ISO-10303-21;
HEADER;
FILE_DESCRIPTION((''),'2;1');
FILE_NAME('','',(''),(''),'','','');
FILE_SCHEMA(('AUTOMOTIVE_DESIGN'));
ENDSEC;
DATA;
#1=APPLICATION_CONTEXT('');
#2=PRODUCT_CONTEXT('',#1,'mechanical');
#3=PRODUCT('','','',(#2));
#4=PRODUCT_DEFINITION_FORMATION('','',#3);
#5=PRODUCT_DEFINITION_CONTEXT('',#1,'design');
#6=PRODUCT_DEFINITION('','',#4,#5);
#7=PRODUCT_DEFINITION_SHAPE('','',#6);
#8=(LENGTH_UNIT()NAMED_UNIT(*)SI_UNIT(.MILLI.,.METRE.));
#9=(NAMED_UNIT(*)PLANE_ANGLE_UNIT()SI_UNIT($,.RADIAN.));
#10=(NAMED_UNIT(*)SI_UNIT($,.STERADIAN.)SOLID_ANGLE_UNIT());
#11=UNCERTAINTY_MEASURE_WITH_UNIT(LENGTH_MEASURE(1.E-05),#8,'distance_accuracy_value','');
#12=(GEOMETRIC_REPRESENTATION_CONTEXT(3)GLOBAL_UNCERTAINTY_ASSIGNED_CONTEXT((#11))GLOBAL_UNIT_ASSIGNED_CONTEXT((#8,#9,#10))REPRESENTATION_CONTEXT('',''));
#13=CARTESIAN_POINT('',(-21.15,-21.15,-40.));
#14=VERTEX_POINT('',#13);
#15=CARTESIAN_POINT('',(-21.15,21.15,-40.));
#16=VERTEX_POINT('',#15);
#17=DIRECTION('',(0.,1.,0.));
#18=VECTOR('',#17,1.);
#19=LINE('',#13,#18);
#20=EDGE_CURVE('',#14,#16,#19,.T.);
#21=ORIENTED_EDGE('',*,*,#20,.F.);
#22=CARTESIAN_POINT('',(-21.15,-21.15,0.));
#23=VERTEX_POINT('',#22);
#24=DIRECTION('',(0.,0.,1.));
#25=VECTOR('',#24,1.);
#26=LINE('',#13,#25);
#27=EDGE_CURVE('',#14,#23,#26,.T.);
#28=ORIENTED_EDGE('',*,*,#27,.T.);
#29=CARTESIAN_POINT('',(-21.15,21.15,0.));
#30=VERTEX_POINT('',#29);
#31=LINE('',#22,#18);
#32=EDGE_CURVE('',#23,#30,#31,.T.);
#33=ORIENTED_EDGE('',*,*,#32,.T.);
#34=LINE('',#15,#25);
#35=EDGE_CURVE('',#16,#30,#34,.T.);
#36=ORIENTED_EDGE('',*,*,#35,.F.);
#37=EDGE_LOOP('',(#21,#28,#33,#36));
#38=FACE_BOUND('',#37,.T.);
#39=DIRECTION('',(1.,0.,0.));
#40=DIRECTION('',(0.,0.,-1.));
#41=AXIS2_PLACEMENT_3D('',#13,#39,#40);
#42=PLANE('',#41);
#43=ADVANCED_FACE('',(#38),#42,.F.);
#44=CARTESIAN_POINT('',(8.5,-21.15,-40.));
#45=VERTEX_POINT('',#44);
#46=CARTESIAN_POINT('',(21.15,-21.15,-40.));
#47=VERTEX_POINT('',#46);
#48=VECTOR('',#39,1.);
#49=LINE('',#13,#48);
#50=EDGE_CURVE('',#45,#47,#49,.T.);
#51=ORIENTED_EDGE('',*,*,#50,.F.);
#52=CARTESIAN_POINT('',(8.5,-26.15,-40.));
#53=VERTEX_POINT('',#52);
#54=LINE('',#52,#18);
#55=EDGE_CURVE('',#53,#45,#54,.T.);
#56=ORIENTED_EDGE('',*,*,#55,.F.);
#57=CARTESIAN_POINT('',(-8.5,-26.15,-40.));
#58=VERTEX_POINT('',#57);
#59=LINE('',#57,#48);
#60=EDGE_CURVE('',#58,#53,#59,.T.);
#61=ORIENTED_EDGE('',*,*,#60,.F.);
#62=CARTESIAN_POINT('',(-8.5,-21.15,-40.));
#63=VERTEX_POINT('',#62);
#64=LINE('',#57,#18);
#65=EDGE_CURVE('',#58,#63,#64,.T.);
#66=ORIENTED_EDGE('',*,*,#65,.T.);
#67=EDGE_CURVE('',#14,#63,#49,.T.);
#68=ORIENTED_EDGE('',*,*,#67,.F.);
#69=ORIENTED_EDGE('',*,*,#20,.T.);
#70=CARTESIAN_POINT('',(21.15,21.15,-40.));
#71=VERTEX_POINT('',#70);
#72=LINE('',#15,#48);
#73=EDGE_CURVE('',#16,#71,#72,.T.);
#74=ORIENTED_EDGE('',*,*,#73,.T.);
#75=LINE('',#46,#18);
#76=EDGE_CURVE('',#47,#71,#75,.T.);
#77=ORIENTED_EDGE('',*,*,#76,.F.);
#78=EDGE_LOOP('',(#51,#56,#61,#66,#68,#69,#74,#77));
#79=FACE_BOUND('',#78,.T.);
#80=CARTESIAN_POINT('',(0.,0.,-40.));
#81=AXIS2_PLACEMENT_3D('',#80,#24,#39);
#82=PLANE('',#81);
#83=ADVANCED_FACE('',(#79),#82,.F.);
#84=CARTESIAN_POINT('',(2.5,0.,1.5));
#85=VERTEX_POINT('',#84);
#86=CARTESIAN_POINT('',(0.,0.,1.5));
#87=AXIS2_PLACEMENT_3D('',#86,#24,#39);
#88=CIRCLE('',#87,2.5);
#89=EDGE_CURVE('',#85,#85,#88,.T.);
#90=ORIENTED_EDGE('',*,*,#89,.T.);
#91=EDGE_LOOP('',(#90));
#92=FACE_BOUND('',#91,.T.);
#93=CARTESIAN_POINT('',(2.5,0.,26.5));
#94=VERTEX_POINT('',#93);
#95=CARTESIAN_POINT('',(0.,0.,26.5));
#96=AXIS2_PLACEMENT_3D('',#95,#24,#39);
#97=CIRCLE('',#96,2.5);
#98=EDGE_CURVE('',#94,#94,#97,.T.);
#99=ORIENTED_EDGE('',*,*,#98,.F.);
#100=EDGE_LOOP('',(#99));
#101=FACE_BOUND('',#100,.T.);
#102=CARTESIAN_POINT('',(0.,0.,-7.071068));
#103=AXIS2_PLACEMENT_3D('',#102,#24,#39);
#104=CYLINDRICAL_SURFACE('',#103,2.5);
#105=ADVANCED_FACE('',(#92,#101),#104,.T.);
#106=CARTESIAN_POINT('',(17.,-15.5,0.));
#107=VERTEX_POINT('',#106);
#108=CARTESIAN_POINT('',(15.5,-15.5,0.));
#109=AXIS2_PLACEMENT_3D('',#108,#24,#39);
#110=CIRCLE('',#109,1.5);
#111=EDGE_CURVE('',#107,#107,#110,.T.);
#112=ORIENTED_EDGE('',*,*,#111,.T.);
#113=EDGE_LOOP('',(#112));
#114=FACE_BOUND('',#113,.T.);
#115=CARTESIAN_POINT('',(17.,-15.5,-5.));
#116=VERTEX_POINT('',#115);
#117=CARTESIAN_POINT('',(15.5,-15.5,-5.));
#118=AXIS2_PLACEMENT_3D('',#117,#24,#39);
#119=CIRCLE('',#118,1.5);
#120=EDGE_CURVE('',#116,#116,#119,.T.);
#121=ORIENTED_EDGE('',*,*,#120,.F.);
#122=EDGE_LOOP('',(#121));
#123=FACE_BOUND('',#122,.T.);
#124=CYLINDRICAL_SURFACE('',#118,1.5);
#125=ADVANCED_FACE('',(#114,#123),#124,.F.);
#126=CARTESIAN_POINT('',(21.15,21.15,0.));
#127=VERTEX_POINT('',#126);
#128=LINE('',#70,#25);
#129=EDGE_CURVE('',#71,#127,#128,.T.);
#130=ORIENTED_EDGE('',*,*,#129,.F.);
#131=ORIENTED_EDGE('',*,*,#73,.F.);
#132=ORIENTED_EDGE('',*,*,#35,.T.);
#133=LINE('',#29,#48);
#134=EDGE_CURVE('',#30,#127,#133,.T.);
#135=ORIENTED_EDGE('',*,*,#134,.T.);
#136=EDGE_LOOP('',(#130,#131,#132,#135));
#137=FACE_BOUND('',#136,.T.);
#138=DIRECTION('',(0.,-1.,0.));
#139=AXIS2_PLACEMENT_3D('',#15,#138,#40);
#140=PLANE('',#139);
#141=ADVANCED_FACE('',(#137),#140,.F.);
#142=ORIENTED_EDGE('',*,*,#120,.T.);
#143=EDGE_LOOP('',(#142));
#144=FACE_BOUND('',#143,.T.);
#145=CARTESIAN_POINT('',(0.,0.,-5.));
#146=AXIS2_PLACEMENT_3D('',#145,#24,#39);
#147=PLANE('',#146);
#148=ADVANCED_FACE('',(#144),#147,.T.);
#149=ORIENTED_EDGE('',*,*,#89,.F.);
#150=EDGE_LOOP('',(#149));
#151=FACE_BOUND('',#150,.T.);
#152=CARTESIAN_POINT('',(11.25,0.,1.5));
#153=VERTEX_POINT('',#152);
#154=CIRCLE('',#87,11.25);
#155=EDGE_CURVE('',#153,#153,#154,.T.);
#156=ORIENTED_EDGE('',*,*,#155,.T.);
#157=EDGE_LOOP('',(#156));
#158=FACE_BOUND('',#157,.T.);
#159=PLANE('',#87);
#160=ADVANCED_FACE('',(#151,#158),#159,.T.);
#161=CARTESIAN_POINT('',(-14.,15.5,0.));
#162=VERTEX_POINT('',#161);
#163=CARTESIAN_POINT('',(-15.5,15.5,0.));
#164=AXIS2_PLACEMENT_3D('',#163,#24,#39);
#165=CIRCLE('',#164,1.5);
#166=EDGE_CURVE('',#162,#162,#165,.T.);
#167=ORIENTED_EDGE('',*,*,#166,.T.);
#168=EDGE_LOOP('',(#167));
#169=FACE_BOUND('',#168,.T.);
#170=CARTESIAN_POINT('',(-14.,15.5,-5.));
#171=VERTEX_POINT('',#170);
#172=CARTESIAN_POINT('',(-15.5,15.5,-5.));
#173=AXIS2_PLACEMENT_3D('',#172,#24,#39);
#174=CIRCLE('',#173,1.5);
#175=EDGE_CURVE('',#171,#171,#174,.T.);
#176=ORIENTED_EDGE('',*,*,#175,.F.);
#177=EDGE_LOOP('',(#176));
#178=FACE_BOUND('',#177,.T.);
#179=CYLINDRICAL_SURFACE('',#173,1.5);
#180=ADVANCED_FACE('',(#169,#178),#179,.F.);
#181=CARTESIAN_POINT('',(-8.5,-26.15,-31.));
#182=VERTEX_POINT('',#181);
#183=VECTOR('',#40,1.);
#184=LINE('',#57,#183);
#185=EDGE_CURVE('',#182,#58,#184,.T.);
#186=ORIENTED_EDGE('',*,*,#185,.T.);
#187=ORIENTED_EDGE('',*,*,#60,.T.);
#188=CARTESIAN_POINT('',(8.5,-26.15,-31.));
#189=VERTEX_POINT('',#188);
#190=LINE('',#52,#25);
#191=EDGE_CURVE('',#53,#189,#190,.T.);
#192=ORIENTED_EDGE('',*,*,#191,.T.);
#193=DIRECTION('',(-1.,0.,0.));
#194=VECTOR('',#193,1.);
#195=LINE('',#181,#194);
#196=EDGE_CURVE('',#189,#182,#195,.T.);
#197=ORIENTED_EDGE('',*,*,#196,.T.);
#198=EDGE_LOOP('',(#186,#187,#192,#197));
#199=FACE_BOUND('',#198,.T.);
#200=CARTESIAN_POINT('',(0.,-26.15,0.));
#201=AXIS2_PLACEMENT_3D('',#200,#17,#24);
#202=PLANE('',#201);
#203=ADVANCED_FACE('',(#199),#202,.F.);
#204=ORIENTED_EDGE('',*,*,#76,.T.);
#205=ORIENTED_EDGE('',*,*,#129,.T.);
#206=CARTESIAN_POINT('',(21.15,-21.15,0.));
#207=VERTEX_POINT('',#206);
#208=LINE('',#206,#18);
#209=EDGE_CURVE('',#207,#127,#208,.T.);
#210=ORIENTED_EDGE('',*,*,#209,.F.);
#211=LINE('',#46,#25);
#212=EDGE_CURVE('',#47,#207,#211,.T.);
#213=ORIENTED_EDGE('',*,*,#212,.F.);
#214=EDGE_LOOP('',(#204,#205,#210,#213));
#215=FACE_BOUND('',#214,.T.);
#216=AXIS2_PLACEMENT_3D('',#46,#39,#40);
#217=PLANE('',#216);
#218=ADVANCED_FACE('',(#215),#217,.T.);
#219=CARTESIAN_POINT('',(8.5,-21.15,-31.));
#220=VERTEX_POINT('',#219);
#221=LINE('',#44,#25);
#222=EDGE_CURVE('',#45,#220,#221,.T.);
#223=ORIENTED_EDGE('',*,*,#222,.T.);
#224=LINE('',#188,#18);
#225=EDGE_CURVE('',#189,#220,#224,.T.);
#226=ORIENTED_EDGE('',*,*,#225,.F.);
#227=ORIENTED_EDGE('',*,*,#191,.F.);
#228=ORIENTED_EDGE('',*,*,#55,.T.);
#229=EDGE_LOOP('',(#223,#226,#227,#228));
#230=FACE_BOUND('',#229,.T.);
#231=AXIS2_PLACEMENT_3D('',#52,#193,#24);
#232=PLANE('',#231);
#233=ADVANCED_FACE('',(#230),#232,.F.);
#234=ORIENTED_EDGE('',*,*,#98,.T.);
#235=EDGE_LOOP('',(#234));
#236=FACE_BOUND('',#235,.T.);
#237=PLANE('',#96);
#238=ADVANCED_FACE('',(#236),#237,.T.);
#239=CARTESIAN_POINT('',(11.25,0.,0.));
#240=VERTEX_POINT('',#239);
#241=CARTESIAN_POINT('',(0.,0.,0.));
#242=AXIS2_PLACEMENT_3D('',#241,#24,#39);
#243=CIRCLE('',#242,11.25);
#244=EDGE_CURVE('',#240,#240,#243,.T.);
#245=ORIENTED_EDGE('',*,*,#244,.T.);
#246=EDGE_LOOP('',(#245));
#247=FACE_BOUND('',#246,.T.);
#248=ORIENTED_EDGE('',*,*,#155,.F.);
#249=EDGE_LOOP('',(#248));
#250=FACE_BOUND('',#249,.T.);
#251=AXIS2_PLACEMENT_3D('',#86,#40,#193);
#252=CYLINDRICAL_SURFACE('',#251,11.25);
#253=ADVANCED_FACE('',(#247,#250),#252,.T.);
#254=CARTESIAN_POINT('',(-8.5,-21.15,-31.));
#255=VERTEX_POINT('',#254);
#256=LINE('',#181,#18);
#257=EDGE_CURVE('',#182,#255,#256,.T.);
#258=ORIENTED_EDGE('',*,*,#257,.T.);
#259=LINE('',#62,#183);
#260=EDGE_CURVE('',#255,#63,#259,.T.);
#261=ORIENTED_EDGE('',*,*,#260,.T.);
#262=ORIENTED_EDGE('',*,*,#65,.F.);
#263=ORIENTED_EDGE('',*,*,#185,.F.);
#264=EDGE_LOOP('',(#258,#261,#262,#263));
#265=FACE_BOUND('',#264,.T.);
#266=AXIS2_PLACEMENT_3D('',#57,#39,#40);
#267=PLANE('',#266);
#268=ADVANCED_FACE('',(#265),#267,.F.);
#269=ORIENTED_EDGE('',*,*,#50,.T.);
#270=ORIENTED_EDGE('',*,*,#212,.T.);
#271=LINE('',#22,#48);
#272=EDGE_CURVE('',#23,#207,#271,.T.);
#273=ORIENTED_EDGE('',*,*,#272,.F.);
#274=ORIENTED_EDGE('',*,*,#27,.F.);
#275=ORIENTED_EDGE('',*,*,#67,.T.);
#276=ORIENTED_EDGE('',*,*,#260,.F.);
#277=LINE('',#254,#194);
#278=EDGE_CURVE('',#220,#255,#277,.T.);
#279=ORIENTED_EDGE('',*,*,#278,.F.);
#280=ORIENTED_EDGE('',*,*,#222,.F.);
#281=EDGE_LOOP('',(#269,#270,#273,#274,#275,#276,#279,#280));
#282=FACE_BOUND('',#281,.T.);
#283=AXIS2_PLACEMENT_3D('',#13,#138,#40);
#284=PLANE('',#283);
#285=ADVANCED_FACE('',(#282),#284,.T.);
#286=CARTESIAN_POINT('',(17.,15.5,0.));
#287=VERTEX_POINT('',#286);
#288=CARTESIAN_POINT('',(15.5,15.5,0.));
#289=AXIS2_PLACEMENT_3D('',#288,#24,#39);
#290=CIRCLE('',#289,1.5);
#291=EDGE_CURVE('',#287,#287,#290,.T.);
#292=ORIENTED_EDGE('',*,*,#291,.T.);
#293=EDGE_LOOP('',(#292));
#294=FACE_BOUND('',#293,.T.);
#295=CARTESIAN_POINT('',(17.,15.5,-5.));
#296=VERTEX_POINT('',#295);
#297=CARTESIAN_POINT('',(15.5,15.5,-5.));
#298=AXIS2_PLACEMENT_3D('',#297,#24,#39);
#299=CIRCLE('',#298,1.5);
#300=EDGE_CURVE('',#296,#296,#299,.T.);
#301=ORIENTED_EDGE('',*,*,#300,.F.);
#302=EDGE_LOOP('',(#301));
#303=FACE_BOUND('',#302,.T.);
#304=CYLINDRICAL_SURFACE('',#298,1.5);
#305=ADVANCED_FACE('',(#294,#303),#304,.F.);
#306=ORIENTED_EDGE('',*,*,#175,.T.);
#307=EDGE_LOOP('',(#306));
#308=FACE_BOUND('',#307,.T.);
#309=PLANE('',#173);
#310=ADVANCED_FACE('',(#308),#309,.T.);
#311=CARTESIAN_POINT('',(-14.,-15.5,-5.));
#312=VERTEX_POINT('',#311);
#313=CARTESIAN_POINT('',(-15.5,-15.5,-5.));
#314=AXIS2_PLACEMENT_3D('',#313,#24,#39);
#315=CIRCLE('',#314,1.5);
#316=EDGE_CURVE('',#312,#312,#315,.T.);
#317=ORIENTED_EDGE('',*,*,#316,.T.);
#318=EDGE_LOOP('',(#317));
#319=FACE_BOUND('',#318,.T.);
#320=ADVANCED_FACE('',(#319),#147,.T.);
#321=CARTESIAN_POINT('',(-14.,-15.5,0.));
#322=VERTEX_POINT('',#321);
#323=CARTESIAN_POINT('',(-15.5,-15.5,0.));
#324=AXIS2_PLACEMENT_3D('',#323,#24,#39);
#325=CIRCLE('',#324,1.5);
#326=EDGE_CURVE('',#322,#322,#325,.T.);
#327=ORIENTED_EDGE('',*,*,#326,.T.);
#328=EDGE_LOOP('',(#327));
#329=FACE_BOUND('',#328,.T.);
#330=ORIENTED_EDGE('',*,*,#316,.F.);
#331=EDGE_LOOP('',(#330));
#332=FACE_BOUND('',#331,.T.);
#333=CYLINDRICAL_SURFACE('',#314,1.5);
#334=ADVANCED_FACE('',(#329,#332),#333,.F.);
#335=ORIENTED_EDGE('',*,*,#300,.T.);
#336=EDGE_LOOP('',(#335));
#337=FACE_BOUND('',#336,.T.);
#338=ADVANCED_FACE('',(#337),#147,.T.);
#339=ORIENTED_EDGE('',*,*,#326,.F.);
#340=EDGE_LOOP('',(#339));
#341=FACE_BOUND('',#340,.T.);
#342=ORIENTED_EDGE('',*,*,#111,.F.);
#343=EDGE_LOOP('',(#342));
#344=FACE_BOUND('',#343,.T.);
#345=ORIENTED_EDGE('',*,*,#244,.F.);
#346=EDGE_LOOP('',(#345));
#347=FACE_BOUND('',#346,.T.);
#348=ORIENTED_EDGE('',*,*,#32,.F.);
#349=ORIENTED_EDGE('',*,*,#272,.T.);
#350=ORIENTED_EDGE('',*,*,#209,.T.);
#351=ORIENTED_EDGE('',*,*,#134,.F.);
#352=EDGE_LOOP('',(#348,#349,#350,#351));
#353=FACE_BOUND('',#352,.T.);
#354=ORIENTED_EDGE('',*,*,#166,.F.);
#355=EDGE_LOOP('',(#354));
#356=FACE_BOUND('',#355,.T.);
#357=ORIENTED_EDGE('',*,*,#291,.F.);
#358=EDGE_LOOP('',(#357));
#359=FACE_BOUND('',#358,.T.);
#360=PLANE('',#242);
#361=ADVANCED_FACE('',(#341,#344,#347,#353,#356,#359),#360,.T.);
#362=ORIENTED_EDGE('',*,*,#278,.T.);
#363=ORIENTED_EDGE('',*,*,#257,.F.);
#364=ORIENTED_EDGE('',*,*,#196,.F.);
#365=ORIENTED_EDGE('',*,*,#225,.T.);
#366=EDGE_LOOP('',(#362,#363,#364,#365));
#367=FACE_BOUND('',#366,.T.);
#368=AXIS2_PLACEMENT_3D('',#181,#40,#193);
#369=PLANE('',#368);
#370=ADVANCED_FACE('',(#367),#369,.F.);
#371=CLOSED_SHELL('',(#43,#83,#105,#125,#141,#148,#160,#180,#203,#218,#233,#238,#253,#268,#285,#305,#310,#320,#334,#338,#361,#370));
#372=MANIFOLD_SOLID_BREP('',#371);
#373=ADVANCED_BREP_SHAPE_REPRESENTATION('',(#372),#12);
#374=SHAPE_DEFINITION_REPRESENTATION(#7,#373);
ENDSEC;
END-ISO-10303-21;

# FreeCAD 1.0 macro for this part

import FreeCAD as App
import Part
import Sketcher
from FreeCAD import Vector


def add_polygon(sketch, points):
    """Adds a closed chain of lines whose ends are joined by coincident constraints."""
    first, n = sketch.GeometryCount, len(points)
    for a, b in zip(points, points[1:] + points[:1]):
        sketch.addGeometry(Part.LineSegment(App.Vector(*a, 0), App.Vector(*b, 0)), False)
    for i in range(n):
        sketch.addConstraint(Sketcher.Constraint("Coincident", first + i, 2, first + (i + 1) % n, 1))

doc = App.newDocument("Part")
body = doc.addObject("PartDesign::Body", "Body")

# Sketch on XY plane
sketch1 = doc.addObject("Sketcher::SketchObject", "Sketch")
body.addObject(sketch1)
sketch1.AttachmentSupport = (doc.XY_Plane, [""])
sketch1.MapMode = "FlatFace"
add_polygon(sketch1, [(-21, 21), (-21, -21), (21, -21), (21, 21)])  # lines 0-3
sketch1.addConstraint(Sketcher.Constraint("Vertical", 0))
sketch1.addConstraint(Sketcher.Constraint("Horizontal", 1))
sketch1.addConstraint(Sketcher.Constraint("Vertical", 2))
sketch1.addConstraint(Sketcher.Constraint("Horizontal", 3))
sketch1.addConstraint(Sketcher.Constraint("Symmetric", 0, 2, 2, 2, -1, 1))
sketch1.addConstraint(Sketcher.Constraint("Equal", 3, 0))
sketch1.addConstraint(Sketcher.Constraint("DistanceX", 1, 1, 1, 2, 42.3))
pad1 = doc.addObject("PartDesign::Pad", "Pad")
body.addObject(pad1)
pad1.Profile = sketch1
pad1.Length = 40
pad1.Reversed = True

# Sketch on XY plane
sketch2 = doc.addObject("Sketcher::SketchObject", "Sketch001")
body.addObject(sketch2)
sketch2.AttachmentSupport = (doc.XY_Plane, [""])
sketch2.MapMode = "FlatFace"
sketch2.addGeometry(Part.Circle(Vector(-15.5, -15.5, 0), Vector(0, 0, 1), 1.5), False)
sketch2.addGeometry(Part.Circle(Vector(15.5, 15.5, 0), Vector(0, 0, 1), 1.5), False)
sketch2.addGeometry(Part.Circle(Vector(15.5, -15.5, 0), Vector(0, 0, 1), 1.5), False)
sketch2.addGeometry(Part.Circle(Vector(-15.5, 15.5, 0), Vector(0, 0, 1), 1.5), False)
sketch2.addConstraint(Sketcher.Constraint("Equal", 0, 1))
sketch2.addConstraint(Sketcher.Constraint("Equal", 1, 2))
sketch2.addConstraint(Sketcher.Constraint("Equal", 2, 3))
sketch2.addConstraint(Sketcher.Constraint("Symmetric", 0, 3, 1, 3, -1, 1))
sketch2.addConstraint(Sketcher.Constraint("Symmetric", 2, 3, 3, 3, -1, 1))
sketch2.addConstraint(Sketcher.Constraint("Symmetric", 0, 3, 2, 3, -2))
sketch2.addConstraint(Sketcher.Constraint("Diameter", 0, 3.0))
sketch2.addConstraint(Sketcher.Constraint("DistanceX", 0, 3, 1, 3, 31.0))
sketch2.addConstraint(Sketcher.Constraint("DistanceY", 0, 3, 1, 3, 31.0))
pocket1 = doc.addObject("PartDesign::Pocket", "Pocket")
body.addObject(pocket1)
pocket1.Profile = sketch2
pocket1.Length = 5

# Sketch on XY plane
sketch3 = doc.addObject("Sketcher::SketchObject", "Sketch002")
body.addObject(sketch3)
sketch3.AttachmentSupport = (doc.XY_Plane, [""])
sketch3.MapMode = "FlatFace"
sketch3.addGeometry(Part.Circle(Vector(0, 0, 0), Vector(0, 0, 1), 11.2), False)
sketch3.addGeometry(Part.Circle(Vector(0, 0, 0), Vector(0, 0, 1), 2.5), False)
sketch3.addConstraint(Sketcher.Constraint("Coincident", 0, 3, -1, 1))
sketch3.addConstraint(Sketcher.Constraint("Coincident", 1, 3, -1, 1))
sketch3.addConstraint(Sketcher.Constraint("Diameter", 1, 5.0))
sketch3.addConstraint(Sketcher.Constraint("Diameter", 0, 22.5))
pad2 = doc.addObject("PartDesign::Pad", "Pad001")
body.addObject(pad2)
pad2.Profile = sketch3
pad2.Length = 1.5

# Sketch on XY plane
sketch4 = doc.addObject("Sketcher::SketchObject", "Sketch003")
body.addObject(sketch4)
sketch4.AttachmentSupport = (doc.XY_Plane, [""])
sketch4.MapMode = "FlatFace"
sketch4.AttachmentOffset = App.Placement(Vector(0, 0, 1.5), App.Rotation())
sketch4.addGeometry(Part.Circle(Vector(0, 0, 0), Vector(0, 0, 1), 2.5), False)
sketch4.addConstraint(Sketcher.Constraint("Coincident", 0, 3, -1, 1))
sketch4.addConstraint(Sketcher.Constraint("Diameter", 0, 5.0))
pad3 = doc.addObject("PartDesign::Pad", "Pad002")
body.addObject(pad3)
pad3.Profile = sketch4
pad3.Type = "TwoLengths"
pad3.Length = 25
pad3.Length2 = 40

# Sketch on XZ plane
sketch5 = doc.addObject("Sketcher::SketchObject", "Sketch004")
body.addObject(sketch5)
sketch5.AttachmentSupport = (doc.XZ_Plane, [""])
sketch5.MapMode = "FlatFace"
sketch5.AttachmentOffset = App.Placement(Vector(0, 0, 21.15), App.Rotation())
add_polygon(sketch5, [(-8, -31), (-8, -40), (8, -40), (8, -31)])  # lines 0-3
sketch5.addConstraint(Sketcher.Constraint("Vertical", 0))
sketch5.addConstraint(Sketcher.Constraint("Horizontal", 1))
sketch5.addConstraint(Sketcher.Constraint("Vertical", 2))
sketch5.addConstraint(Sketcher.Constraint("Horizontal", 3))
sketch5.addConstraint(Sketcher.Constraint("DistanceX", 1, 1, 1, 2, 17.0))
sketch5.addConstraint(Sketcher.Constraint("DistanceY", 0, 2, 0, 1, 9.0))
sketch5.addConstraint(Sketcher.Constraint("DistanceY", 0, 2, -1, 1, 40.0))
sketch5.addConstraint(Sketcher.Constraint("DistanceX", 0, 2, -1, 1, 8.5))
pad4 = doc.addObject("PartDesign::Pad", "Pad003")
body.addObject(pad4)
pad4.Profile = sketch5
pad4.Length = 5

doc.recompute()
